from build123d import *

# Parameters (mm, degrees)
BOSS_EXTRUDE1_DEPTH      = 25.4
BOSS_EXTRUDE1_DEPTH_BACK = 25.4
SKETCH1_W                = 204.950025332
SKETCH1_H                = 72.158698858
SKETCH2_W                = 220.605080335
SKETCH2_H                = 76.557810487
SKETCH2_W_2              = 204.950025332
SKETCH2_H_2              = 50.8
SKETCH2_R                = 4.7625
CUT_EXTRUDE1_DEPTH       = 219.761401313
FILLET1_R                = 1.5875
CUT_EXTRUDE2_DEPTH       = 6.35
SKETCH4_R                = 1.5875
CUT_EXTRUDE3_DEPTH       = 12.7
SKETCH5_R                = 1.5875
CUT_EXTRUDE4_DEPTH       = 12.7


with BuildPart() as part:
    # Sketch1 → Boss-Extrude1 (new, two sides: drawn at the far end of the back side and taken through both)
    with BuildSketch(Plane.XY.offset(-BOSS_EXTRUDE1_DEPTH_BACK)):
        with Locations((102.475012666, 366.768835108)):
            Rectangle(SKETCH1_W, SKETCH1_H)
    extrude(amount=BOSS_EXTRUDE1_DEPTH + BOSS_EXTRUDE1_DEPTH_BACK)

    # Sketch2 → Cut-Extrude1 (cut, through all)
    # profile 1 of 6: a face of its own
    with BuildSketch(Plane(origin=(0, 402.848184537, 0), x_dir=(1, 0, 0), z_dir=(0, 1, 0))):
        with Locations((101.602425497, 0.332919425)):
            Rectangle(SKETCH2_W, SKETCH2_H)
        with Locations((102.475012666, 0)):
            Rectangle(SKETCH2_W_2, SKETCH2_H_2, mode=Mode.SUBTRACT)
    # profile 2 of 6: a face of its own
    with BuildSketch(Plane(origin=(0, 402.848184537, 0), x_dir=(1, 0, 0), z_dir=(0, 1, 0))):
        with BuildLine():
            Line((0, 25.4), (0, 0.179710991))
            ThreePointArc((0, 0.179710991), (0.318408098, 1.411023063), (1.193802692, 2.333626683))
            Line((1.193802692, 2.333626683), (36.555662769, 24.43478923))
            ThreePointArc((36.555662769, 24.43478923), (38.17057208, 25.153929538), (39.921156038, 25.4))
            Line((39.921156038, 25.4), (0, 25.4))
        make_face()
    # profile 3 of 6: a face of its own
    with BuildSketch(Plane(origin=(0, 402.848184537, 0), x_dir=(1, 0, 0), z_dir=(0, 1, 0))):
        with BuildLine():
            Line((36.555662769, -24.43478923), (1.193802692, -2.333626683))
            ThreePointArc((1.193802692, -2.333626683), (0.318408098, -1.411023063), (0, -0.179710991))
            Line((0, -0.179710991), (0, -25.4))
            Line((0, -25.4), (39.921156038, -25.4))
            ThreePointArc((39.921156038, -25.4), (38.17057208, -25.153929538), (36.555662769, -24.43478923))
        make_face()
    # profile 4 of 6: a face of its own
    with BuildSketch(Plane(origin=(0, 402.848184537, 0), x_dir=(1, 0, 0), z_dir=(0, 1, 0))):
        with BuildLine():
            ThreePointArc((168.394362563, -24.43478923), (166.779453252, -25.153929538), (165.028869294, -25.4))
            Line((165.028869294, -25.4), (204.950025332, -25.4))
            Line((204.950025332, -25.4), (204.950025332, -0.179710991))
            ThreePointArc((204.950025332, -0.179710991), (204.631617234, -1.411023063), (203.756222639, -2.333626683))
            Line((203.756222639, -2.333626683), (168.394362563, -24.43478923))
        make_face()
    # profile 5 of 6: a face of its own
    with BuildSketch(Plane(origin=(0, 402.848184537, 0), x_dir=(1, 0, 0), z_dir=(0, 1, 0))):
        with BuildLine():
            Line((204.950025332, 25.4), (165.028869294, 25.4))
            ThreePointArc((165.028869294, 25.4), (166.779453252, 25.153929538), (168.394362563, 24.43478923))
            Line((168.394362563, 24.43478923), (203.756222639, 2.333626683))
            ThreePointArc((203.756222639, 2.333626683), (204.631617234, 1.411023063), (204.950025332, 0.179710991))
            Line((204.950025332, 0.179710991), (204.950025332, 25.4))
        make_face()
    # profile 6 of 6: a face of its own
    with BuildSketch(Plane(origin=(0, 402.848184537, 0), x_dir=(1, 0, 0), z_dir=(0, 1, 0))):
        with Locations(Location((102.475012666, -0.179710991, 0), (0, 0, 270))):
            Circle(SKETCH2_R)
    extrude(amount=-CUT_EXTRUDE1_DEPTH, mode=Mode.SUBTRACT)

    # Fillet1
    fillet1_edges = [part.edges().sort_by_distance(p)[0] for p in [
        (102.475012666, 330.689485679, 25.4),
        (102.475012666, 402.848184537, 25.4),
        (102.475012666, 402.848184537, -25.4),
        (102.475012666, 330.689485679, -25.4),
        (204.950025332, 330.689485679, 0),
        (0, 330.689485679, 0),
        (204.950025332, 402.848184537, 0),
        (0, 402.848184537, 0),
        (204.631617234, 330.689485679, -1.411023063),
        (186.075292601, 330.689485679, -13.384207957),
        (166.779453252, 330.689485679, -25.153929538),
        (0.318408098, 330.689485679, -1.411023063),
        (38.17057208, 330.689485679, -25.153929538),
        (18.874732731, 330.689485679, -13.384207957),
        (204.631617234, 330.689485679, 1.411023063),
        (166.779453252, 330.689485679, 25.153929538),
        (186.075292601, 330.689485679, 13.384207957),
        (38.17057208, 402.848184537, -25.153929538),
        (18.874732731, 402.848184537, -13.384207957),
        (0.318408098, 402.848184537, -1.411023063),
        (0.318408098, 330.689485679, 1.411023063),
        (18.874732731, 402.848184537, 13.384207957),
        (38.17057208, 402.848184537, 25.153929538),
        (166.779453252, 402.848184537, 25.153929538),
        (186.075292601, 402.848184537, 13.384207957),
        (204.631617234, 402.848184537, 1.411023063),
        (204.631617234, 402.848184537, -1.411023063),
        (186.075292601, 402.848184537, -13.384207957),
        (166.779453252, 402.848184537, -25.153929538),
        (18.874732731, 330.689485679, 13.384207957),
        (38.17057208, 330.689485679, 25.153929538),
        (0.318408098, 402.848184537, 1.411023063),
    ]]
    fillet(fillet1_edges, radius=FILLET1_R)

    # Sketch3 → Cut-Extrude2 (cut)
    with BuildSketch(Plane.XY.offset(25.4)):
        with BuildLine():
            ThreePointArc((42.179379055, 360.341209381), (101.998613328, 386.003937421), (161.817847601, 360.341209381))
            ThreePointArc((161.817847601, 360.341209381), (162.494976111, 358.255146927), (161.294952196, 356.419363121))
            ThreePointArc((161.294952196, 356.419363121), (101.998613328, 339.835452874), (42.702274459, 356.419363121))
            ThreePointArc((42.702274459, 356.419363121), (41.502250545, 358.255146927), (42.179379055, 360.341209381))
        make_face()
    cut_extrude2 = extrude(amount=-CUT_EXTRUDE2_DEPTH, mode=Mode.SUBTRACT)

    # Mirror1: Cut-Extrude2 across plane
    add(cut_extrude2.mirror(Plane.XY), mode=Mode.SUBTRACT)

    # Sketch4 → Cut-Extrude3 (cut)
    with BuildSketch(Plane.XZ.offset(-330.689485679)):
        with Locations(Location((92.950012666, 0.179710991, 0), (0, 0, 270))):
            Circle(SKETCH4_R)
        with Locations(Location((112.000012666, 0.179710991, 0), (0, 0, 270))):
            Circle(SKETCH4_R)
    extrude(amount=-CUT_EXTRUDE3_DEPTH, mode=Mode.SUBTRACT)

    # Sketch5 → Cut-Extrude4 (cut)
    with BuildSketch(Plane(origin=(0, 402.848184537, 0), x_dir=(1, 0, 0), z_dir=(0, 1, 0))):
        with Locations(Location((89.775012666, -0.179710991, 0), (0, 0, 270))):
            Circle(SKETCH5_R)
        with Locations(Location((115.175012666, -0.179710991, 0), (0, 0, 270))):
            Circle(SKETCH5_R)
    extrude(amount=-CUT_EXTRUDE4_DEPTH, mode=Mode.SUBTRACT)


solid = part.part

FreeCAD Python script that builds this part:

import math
import FreeCAD as App
import Part
import Sketcher
Q = App.Units.Quantity


def edges_at(feature, points):
    """Names of the edges that pass closest to the given points."""
    edges = feature.Shape.Edges
    near = lambda p: min(range(len(edges)), key=lambda i: edges[i].distToShape(Part.Vertex(*p))[0])
    return sorted({f"Edge{near(p) + 1}" for p in points})


def add_polygon(sketch, points):
    """Adds a closed chain of lines whose ends are joined by coincident constraints."""
    first, n = sketch.GeometryCount, len(points)
    for a, b in zip(points, points[1:] + points[:1]):
        sketch.addGeometry(Part.LineSegment(App.Vector(*a, 0), App.Vector(*b, 0)), False)
    for i in range(n):
        sketch.addConstraint(Sketcher.Constraint("Coincident", first + i, 2, first + (i + 1) % n, 1))

doc = App.newDocument("Part")
body = doc.addObject("PartDesign::Body", "Body")

sketch1 = doc.addObject("Sketcher::SketchObject", "Sketch")
body.addObject(sketch1)
sketch1.AttachmentSupport = (doc.XY_Plane, [""])
sketch1.MapMode = "FlatFace"
add_polygon(sketch1, [(0, 403), (0, 331), (205, 331), (205, 403)])
sketch1.addConstraint([
    Sketcher.Constraint("Vertical", 0),
    Sketcher.Constraint("Horizontal", 1),
    Sketcher.Constraint("Vertical", 2),
    Sketcher.Constraint("Horizontal", 3),
    Sketcher.Constraint("PointOnObject", 0, 2, -2),
    Sketcher.Constraint("DistanceY", 0, 2, 0, 1, 72.158699),
    Sketcher.Constraint("DistanceX", 1, 1, 1, 2, 204.950025),
    Sketcher.Constraint("DistanceY", -1, 1, 0, 2, 330.689486),
])
pad1 = doc.addObject("PartDesign::Pad", "Pad")
body.addObject(pad1)
pad1.Profile = sketch1
pad1.Type = "TwoLengths"
pad1.Length = Q("1 in")
pad1.Length2 = Q("1 in")

sketch2 = doc.addObject("Sketcher::SketchObject", "Sketch001")
body.addObject(sketch2)
sketch2.AttachmentSupport = (doc.XZ_Plane, [""])
sketch2.MapMode = "FlatFace"
sketch2.AttachmentOffset = App.Placement(App.Vector(0, 0, -402.848185), App.Rotation())
add_polygon(sketch2, [(-8.7, -38.61), (-8.7, 37.95), (211.9, 37.95), (211.9, -38.61)])
sketch2.addGeometry(Part.LineSegment(App.Vector(165.03, 25.4, 0), App.Vector(39.92, 25.4, 0)), False)
sketch2.addGeometry(Part.ArcOfCircle(Part.Circle(App.Vector(39.92, 19.05, 0), App.Vector(0, 0, 1), 6.35), math.radians(90), math.radians(122)), False)
sketch2.addGeometry(Part.LineSegment(App.Vector(36.56, 24.43, 0), App.Vector(1.19, 2.33, 0)), False)
sketch2.addGeometry(Part.ArcOfCircle(Part.Circle(App.Vector(2.54, 0.18, 0), App.Vector(0, 0, 1), 2.54), math.radians(122), math.radians(180)), False)
sketch2.addGeometry(Part.LineSegment(App.Vector(0, 0.18, 0), App.Vector(0, -0.18, 0)), False)
sketch2.addGeometry(Part.ArcOfCircle(Part.Circle(App.Vector(2.54, -0.18, 0), App.Vector(0, 0, 1), 2.54), math.radians(-180), math.radians(-122)), False)
sketch2.addGeometry(Part.LineSegment(App.Vector(1.19, -2.33, 0), App.Vector(36.56, -24.43, 0)), False)
sketch2.addGeometry(Part.ArcOfCircle(Part.Circle(App.Vector(39.92, -19.05, 0), App.Vector(0, 0, 1), 6.35), math.radians(-122), math.radians(-90)), False)
sketch2.addGeometry(Part.LineSegment(App.Vector(39.92, -25.4, 0), App.Vector(165.03, -25.4, 0)), False)
sketch2.addGeometry(Part.ArcOfCircle(Part.Circle(App.Vector(165.03, -19.05, 0), App.Vector(0, 0, 1), 6.35), math.radians(-90), math.radians(-58)), False)
sketch2.addGeometry(Part.LineSegment(App.Vector(168.39, -24.43, 0), App.Vector(203.76, -2.33, 0)), False)
sketch2.addGeometry(Part.ArcOfCircle(Part.Circle(App.Vector(202.41, -0.18, 0), App.Vector(0, 0, 1), 2.54), math.radians(-58), math.radians(0)), False)
sketch2.addGeometry(Part.LineSegment(App.Vector(204.95, -0.18, 0), App.Vector(204.95, 0.18, 0)), False)
sketch2.addGeometry(Part.ArcOfCircle(Part.Circle(App.Vector(202.41, 0.18, 0), App.Vector(0, 0, 1), 2.54), math.radians(0), math.radians(58)), False)
sketch2.addGeometry(Part.LineSegment(App.Vector(203.76, 2.33, 0), App.Vector(168.39, 24.43, 0)), False)
sketch2.addGeometry(Part.ArcOfCircle(Part.Circle(App.Vector(165.03, 19.05, 0), App.Vector(0, 0, 1), 6.35), math.radians(58), math.radians(90)), False)
sketch2.addGeometry(Part.Circle(App.Vector(102.48, 0.18, 0), App.Vector(0, 0, 1), 4.76), False)
sketch2.addConstraint([
    Sketcher.Constraint("Tangent", 4, 2, 5, 1),
    Sketcher.Constraint("Tangent", 5, 2, 6, 1),
    Sketcher.Constraint("Tangent", 6, 2, 7, 1),
    Sketcher.Constraint("Tangent", 7, 2, 8, 1),
    Sketcher.Constraint("Tangent", 8, 2, 9, 1),
    Sketcher.Constraint("Tangent", 9, 2, 10, 1),
    Sketcher.Constraint("Tangent", 10, 2, 11, 1),
    Sketcher.Constraint("Tangent", 11, 2, 12, 1),
    Sketcher.Constraint("Tangent", 12, 2, 13, 1),
    Sketcher.Constraint("Tangent", 13, 2, 14, 1),
    Sketcher.Constraint("Tangent", 14, 2, 15, 1),
    Sketcher.Constraint("Tangent", 15, 2, 16, 1),
    Sketcher.Constraint("Tangent", 16, 2, 17, 1),
    Sketcher.Constraint("Tangent", 17, 2, 18, 1),
    Sketcher.Constraint("Tangent", 18, 2, 19, 1),
    Sketcher.Constraint("Tangent", 19, 2, 4, 1),
    Sketcher.Constraint("Vertical", 0),
    Sketcher.Constraint("Horizontal", 1),
    Sketcher.Constraint("Vertical", 2),
    Sketcher.Constraint("Horizontal", 3),
    Sketcher.Constraint("Horizontal", 4),
    Sketcher.Constraint("Vertical", 8),
    Sketcher.Constraint("Horizontal", 12),
    Sketcher.Constraint("Vertical", 16),
    Sketcher.Constraint("Equal", 7, 9),
    Sketcher.Constraint("Equal", 5, 11),
    Sketcher.Constraint("Equal", 11, 13),
    Sketcher.Constraint("Equal", 9, 15),
    Sketcher.Constraint("Equal", 15, 17),
    Sketcher.Constraint("Equal", 13, 19),
    Sketcher.Constraint("Symmetric", 7, 2, 8, 2, -1, 1),
    Sketcher.Constraint("Symmetric", 5, 3, 11, 3, -1),
    Sketcher.Constraint("Symmetric", 14, 2, 17, 2, -1),
    Sketcher.Constraint("Parallel", 6, 14),
    Sketcher.Constraint("Horizontal", 9, 3, 15, 3),
    Sketcher.Constraint("Horizontal", 17, 3, 20, 3),
    Sketcher.Constraint("Radius", 7, Q("0.1 in")),
    Sketcher.Constraint("Radius", 5, Q("0.25 in")),
    Sketcher.Constraint("Diameter", 20, Q("0.375 in")),
    Sketcher.Constraint("DistanceY", -1, 1, 4, 2, Q("1 in")),
    Sketcher.Constraint("DistanceX", -1, 1, 6, 2, Q("0.0470001 in")),
    Sketcher.Constraint("DistanceX", 1, 1, 1, 2, 220.60508),
    Sketcher.Constraint("DistanceY", 0, 1, 0, 2, 76.55781),
    Sketcher.Constraint("DistanceY", 8, 2, 8, 1, 0.359422),
    Sketcher.Constraint("DistanceX", 4, 2, 4, 1, 125.107713),
    Sketcher.Constraint("DistanceX", 0, 2, 5, 3, 48.621271),
    Sketcher.Constraint("DistanceY", 6, 2, 0, 2, 35.612359),
    Sketcher.Constraint("DistanceX", -1, 1, 20, 3, 102.475013),
])
pocket1 = doc.addObject("PartDesign::Pocket", "Pocket")
body.addObject(pocket1)
pocket1.Profile = sketch2
pocket1.Length = 219.761401
pocket1.Reversed = True
doc.recompute()

fillet = doc.addObject("PartDesign::Fillet", "Fillet")
body.addObject(fillet)
fillet.Base = (pocket1, edges_at(pocket1, [
    (102.475, 330.689, 25.4),
    (102.475, 402.848, 25.4),
    (102.475, 402.848, -25.4),
    (102.475, 330.689, -25.4),
    (204.95, 330.689, 0),
    (0, 330.689, 0),
    (204.95, 402.848, 0),
    (0, 402.848, 0),
    (204.632, 330.689, -1.411),
    (186.075, 330.689, -13.384),
    (166.779, 330.689, -25.154),
    (0.318, 330.689, -1.411),
    (38.171, 330.689, -25.154),
    (18.875, 330.689, -13.384),
    (204.632, 330.689, 1.411),
    (166.779, 330.689, 25.154),
    (186.075, 330.689, 13.384),
    (38.171, 402.848, -25.154),
    (18.875, 402.848, -13.384),
    (0.318, 402.848, -1.411),
    (0.318, 330.689, 1.411),
    (18.875, 402.848, 13.384),
    (38.171, 402.848, 25.154),
    (166.779, 402.848, 25.154),
    (186.075, 402.848, 13.384),
    (204.632, 402.848, 1.411),
    (204.632, 402.848, -1.411),
    (186.075, 402.848, -13.384),
    (166.779, 402.848, -25.154),
    (18.875, 330.689, 13.384),
    (38.171, 330.689, 25.154),
    (0.318, 402.848, 1.411),
]))
fillet.Radius = Q("0.0625 in")

sketch3 = doc.addObject("Sketcher::SketchObject", "Sketch002")
body.addObject(sketch3)
sketch3.AttachmentSupport = (doc.XY_Plane, [""])
sketch3.MapMode = "FlatFace"
sketch3.AttachmentOffset = App.Placement(App.Vector(0, 0, 1 * 25.4), App.Rotation())
sketch3.addGeometry([
    Part.ArcOfCircle(Part.Circle(App.Vector(101.998613, 303.453937, 0), App.Vector(0, 0, 1), 82.55), math.radians(43.560888), math.radians(136.439112)),
    Part.ArcOfCircle(Part.Circle(App.Vector(44.019971, 358.590832, 0), App.Vector(0, 0, 1), 2.54), math.radians(136.439112), math.radians(238.749674)),
    Part.ArcOfCircle(Part.Circle(App.Vector(101.998613, 454.135453, 0), App.Vector(0, 0, 1), 114.3), math.radians(-121.250326), math.radians(-58.749674)),
    Part.ArcOfCircle(Part.Circle(App.Vector(159.977256, 358.590832, 0), App.Vector(0, 0, 1), 2.54), math.radians(-58.749674), math.radians(43.560888)),
], False)
sketch3.addConstraint([
    Sketcher.Constraint("Tangent", 0, 2, 1, 1),
    Sketcher.Constraint("Tangent", 1, 2, 2, 1),
    Sketcher.Constraint("Tangent", 2, 2, 3, 1),
    Sketcher.Constraint("Tangent", 3, 2, 0, 1),
    Sketcher.Constraint("Equal", 1, 3),
    Sketcher.Constraint("Horizontal", 1, 3, 3, 3),
    Sketcher.Constraint("Radius", 1, Q("0.1 in")),
    Sketcher.Constraint("Radius", 2, Q("4.5 in")),
    Sketcher.Constraint("Radius", 0, Q("3.25 in")),
    Sketcher.Constraint("DistanceX", -1, 1, 1, 3, 44.019971),
    Sketcher.Constraint("DistanceY", -1, 1, 1, 3, 358.590832),
    Sketcher.Constraint("DistanceY", -1, 1, 3, 2, 360.341209),
])
pocket2 = doc.addObject("PartDesign::Pocket", "Pocket001")
body.addObject(pocket2)
pocket2.Profile = sketch3
pocket2.Length = Q("0.25 in")
doc.recompute()

mirrored = doc.addObject("PartDesign::Mirrored", "Mirrored")
body.addObject(mirrored)
mirrored.Originals = [pocket2]
mirrored.MirrorPlane = (doc.XY_Plane, [""])
body.Tip = mirrored

sketch4 = doc.addObject("Sketcher::SketchObject", "Sketch003")
body.addObject(sketch4)
sketch4.AttachmentSupport = (doc.XZ_Plane, [""])
sketch4.MapMode = "FlatFace"
sketch4.AttachmentOffset = App.Placement(App.Vector(0, 0, -330.689486), App.Rotation())
sketch4.addGeometry([
    Part.Circle(App.Vector(93, 0.2, 0), App.Vector(0, 0, 1), 1.6),
    Part.Circle(App.Vector(112, 0.2, 0), App.Vector(0, 0, 1), 1.6),
], False)
sketch4.addConstraint([
    Sketcher.Constraint("Equal", 0, 1),
    Sketcher.Constraint("Horizontal", 0, 3, 1, 3),
    Sketcher.Constraint("Diameter", 0, Q("0.125 in")),
    Sketcher.Constraint("DistanceX", 0, 3, 1, 3, Q("0.75 in")),
    Sketcher.Constraint("DistanceY", -1, 1, 0, 3, 0.179711),
    Sketcher.Constraint("DistanceX", -1, 1, 0, 3, 92.950013),
])
pocket3 = doc.addObject("PartDesign::Pocket", "Pocket002")
body.addObject(pocket3)
pocket3.Profile = sketch4
pocket3.Length = Q("0.5 in")

sketch5 = doc.addObject("Sketcher::SketchObject", "Sketch004")
body.addObject(sketch5)
sketch5.AttachmentSupport = (doc.XZ_Plane, [""])
sketch5.MapMode = "FlatFace"
sketch5.AttachmentOffset = App.Placement(App.Vector(0, 0, -402.848185), App.Rotation())
sketch5.addGeometry([
    Part.Circle(App.Vector(89.8, 0.2, 0), App.Vector(0, 0, 1), 1.6),
    Part.Circle(App.Vector(115.2, 0.2, 0), App.Vector(0, 0, 1), 1.6),
], False)
sketch5.addConstraint([
    Sketcher.Constraint("Equal", 0, 1),
    Sketcher.Constraint("Horizontal", 0, 3, 1, 3),
    Sketcher.Constraint("Diameter", 0, Q("0.125 in")),
    Sketcher.Constraint("DistanceX", 0, 3, 1, 3, Q("1 in")),
    Sketcher.Constraint("DistanceY", -1, 1, 0, 3, 0.179711),
    Sketcher.Constraint("DistanceX", -1, 1, 0, 3, 89.775013),
])
pocket4 = doc.addObject("PartDesign::Pocket", "Pocket003")
body.addObject(pocket4)
pocket4.Profile = sketch5
pocket4.Length = Q("0.5 in")
pocket4.Reversed = True

doc.recompute()
